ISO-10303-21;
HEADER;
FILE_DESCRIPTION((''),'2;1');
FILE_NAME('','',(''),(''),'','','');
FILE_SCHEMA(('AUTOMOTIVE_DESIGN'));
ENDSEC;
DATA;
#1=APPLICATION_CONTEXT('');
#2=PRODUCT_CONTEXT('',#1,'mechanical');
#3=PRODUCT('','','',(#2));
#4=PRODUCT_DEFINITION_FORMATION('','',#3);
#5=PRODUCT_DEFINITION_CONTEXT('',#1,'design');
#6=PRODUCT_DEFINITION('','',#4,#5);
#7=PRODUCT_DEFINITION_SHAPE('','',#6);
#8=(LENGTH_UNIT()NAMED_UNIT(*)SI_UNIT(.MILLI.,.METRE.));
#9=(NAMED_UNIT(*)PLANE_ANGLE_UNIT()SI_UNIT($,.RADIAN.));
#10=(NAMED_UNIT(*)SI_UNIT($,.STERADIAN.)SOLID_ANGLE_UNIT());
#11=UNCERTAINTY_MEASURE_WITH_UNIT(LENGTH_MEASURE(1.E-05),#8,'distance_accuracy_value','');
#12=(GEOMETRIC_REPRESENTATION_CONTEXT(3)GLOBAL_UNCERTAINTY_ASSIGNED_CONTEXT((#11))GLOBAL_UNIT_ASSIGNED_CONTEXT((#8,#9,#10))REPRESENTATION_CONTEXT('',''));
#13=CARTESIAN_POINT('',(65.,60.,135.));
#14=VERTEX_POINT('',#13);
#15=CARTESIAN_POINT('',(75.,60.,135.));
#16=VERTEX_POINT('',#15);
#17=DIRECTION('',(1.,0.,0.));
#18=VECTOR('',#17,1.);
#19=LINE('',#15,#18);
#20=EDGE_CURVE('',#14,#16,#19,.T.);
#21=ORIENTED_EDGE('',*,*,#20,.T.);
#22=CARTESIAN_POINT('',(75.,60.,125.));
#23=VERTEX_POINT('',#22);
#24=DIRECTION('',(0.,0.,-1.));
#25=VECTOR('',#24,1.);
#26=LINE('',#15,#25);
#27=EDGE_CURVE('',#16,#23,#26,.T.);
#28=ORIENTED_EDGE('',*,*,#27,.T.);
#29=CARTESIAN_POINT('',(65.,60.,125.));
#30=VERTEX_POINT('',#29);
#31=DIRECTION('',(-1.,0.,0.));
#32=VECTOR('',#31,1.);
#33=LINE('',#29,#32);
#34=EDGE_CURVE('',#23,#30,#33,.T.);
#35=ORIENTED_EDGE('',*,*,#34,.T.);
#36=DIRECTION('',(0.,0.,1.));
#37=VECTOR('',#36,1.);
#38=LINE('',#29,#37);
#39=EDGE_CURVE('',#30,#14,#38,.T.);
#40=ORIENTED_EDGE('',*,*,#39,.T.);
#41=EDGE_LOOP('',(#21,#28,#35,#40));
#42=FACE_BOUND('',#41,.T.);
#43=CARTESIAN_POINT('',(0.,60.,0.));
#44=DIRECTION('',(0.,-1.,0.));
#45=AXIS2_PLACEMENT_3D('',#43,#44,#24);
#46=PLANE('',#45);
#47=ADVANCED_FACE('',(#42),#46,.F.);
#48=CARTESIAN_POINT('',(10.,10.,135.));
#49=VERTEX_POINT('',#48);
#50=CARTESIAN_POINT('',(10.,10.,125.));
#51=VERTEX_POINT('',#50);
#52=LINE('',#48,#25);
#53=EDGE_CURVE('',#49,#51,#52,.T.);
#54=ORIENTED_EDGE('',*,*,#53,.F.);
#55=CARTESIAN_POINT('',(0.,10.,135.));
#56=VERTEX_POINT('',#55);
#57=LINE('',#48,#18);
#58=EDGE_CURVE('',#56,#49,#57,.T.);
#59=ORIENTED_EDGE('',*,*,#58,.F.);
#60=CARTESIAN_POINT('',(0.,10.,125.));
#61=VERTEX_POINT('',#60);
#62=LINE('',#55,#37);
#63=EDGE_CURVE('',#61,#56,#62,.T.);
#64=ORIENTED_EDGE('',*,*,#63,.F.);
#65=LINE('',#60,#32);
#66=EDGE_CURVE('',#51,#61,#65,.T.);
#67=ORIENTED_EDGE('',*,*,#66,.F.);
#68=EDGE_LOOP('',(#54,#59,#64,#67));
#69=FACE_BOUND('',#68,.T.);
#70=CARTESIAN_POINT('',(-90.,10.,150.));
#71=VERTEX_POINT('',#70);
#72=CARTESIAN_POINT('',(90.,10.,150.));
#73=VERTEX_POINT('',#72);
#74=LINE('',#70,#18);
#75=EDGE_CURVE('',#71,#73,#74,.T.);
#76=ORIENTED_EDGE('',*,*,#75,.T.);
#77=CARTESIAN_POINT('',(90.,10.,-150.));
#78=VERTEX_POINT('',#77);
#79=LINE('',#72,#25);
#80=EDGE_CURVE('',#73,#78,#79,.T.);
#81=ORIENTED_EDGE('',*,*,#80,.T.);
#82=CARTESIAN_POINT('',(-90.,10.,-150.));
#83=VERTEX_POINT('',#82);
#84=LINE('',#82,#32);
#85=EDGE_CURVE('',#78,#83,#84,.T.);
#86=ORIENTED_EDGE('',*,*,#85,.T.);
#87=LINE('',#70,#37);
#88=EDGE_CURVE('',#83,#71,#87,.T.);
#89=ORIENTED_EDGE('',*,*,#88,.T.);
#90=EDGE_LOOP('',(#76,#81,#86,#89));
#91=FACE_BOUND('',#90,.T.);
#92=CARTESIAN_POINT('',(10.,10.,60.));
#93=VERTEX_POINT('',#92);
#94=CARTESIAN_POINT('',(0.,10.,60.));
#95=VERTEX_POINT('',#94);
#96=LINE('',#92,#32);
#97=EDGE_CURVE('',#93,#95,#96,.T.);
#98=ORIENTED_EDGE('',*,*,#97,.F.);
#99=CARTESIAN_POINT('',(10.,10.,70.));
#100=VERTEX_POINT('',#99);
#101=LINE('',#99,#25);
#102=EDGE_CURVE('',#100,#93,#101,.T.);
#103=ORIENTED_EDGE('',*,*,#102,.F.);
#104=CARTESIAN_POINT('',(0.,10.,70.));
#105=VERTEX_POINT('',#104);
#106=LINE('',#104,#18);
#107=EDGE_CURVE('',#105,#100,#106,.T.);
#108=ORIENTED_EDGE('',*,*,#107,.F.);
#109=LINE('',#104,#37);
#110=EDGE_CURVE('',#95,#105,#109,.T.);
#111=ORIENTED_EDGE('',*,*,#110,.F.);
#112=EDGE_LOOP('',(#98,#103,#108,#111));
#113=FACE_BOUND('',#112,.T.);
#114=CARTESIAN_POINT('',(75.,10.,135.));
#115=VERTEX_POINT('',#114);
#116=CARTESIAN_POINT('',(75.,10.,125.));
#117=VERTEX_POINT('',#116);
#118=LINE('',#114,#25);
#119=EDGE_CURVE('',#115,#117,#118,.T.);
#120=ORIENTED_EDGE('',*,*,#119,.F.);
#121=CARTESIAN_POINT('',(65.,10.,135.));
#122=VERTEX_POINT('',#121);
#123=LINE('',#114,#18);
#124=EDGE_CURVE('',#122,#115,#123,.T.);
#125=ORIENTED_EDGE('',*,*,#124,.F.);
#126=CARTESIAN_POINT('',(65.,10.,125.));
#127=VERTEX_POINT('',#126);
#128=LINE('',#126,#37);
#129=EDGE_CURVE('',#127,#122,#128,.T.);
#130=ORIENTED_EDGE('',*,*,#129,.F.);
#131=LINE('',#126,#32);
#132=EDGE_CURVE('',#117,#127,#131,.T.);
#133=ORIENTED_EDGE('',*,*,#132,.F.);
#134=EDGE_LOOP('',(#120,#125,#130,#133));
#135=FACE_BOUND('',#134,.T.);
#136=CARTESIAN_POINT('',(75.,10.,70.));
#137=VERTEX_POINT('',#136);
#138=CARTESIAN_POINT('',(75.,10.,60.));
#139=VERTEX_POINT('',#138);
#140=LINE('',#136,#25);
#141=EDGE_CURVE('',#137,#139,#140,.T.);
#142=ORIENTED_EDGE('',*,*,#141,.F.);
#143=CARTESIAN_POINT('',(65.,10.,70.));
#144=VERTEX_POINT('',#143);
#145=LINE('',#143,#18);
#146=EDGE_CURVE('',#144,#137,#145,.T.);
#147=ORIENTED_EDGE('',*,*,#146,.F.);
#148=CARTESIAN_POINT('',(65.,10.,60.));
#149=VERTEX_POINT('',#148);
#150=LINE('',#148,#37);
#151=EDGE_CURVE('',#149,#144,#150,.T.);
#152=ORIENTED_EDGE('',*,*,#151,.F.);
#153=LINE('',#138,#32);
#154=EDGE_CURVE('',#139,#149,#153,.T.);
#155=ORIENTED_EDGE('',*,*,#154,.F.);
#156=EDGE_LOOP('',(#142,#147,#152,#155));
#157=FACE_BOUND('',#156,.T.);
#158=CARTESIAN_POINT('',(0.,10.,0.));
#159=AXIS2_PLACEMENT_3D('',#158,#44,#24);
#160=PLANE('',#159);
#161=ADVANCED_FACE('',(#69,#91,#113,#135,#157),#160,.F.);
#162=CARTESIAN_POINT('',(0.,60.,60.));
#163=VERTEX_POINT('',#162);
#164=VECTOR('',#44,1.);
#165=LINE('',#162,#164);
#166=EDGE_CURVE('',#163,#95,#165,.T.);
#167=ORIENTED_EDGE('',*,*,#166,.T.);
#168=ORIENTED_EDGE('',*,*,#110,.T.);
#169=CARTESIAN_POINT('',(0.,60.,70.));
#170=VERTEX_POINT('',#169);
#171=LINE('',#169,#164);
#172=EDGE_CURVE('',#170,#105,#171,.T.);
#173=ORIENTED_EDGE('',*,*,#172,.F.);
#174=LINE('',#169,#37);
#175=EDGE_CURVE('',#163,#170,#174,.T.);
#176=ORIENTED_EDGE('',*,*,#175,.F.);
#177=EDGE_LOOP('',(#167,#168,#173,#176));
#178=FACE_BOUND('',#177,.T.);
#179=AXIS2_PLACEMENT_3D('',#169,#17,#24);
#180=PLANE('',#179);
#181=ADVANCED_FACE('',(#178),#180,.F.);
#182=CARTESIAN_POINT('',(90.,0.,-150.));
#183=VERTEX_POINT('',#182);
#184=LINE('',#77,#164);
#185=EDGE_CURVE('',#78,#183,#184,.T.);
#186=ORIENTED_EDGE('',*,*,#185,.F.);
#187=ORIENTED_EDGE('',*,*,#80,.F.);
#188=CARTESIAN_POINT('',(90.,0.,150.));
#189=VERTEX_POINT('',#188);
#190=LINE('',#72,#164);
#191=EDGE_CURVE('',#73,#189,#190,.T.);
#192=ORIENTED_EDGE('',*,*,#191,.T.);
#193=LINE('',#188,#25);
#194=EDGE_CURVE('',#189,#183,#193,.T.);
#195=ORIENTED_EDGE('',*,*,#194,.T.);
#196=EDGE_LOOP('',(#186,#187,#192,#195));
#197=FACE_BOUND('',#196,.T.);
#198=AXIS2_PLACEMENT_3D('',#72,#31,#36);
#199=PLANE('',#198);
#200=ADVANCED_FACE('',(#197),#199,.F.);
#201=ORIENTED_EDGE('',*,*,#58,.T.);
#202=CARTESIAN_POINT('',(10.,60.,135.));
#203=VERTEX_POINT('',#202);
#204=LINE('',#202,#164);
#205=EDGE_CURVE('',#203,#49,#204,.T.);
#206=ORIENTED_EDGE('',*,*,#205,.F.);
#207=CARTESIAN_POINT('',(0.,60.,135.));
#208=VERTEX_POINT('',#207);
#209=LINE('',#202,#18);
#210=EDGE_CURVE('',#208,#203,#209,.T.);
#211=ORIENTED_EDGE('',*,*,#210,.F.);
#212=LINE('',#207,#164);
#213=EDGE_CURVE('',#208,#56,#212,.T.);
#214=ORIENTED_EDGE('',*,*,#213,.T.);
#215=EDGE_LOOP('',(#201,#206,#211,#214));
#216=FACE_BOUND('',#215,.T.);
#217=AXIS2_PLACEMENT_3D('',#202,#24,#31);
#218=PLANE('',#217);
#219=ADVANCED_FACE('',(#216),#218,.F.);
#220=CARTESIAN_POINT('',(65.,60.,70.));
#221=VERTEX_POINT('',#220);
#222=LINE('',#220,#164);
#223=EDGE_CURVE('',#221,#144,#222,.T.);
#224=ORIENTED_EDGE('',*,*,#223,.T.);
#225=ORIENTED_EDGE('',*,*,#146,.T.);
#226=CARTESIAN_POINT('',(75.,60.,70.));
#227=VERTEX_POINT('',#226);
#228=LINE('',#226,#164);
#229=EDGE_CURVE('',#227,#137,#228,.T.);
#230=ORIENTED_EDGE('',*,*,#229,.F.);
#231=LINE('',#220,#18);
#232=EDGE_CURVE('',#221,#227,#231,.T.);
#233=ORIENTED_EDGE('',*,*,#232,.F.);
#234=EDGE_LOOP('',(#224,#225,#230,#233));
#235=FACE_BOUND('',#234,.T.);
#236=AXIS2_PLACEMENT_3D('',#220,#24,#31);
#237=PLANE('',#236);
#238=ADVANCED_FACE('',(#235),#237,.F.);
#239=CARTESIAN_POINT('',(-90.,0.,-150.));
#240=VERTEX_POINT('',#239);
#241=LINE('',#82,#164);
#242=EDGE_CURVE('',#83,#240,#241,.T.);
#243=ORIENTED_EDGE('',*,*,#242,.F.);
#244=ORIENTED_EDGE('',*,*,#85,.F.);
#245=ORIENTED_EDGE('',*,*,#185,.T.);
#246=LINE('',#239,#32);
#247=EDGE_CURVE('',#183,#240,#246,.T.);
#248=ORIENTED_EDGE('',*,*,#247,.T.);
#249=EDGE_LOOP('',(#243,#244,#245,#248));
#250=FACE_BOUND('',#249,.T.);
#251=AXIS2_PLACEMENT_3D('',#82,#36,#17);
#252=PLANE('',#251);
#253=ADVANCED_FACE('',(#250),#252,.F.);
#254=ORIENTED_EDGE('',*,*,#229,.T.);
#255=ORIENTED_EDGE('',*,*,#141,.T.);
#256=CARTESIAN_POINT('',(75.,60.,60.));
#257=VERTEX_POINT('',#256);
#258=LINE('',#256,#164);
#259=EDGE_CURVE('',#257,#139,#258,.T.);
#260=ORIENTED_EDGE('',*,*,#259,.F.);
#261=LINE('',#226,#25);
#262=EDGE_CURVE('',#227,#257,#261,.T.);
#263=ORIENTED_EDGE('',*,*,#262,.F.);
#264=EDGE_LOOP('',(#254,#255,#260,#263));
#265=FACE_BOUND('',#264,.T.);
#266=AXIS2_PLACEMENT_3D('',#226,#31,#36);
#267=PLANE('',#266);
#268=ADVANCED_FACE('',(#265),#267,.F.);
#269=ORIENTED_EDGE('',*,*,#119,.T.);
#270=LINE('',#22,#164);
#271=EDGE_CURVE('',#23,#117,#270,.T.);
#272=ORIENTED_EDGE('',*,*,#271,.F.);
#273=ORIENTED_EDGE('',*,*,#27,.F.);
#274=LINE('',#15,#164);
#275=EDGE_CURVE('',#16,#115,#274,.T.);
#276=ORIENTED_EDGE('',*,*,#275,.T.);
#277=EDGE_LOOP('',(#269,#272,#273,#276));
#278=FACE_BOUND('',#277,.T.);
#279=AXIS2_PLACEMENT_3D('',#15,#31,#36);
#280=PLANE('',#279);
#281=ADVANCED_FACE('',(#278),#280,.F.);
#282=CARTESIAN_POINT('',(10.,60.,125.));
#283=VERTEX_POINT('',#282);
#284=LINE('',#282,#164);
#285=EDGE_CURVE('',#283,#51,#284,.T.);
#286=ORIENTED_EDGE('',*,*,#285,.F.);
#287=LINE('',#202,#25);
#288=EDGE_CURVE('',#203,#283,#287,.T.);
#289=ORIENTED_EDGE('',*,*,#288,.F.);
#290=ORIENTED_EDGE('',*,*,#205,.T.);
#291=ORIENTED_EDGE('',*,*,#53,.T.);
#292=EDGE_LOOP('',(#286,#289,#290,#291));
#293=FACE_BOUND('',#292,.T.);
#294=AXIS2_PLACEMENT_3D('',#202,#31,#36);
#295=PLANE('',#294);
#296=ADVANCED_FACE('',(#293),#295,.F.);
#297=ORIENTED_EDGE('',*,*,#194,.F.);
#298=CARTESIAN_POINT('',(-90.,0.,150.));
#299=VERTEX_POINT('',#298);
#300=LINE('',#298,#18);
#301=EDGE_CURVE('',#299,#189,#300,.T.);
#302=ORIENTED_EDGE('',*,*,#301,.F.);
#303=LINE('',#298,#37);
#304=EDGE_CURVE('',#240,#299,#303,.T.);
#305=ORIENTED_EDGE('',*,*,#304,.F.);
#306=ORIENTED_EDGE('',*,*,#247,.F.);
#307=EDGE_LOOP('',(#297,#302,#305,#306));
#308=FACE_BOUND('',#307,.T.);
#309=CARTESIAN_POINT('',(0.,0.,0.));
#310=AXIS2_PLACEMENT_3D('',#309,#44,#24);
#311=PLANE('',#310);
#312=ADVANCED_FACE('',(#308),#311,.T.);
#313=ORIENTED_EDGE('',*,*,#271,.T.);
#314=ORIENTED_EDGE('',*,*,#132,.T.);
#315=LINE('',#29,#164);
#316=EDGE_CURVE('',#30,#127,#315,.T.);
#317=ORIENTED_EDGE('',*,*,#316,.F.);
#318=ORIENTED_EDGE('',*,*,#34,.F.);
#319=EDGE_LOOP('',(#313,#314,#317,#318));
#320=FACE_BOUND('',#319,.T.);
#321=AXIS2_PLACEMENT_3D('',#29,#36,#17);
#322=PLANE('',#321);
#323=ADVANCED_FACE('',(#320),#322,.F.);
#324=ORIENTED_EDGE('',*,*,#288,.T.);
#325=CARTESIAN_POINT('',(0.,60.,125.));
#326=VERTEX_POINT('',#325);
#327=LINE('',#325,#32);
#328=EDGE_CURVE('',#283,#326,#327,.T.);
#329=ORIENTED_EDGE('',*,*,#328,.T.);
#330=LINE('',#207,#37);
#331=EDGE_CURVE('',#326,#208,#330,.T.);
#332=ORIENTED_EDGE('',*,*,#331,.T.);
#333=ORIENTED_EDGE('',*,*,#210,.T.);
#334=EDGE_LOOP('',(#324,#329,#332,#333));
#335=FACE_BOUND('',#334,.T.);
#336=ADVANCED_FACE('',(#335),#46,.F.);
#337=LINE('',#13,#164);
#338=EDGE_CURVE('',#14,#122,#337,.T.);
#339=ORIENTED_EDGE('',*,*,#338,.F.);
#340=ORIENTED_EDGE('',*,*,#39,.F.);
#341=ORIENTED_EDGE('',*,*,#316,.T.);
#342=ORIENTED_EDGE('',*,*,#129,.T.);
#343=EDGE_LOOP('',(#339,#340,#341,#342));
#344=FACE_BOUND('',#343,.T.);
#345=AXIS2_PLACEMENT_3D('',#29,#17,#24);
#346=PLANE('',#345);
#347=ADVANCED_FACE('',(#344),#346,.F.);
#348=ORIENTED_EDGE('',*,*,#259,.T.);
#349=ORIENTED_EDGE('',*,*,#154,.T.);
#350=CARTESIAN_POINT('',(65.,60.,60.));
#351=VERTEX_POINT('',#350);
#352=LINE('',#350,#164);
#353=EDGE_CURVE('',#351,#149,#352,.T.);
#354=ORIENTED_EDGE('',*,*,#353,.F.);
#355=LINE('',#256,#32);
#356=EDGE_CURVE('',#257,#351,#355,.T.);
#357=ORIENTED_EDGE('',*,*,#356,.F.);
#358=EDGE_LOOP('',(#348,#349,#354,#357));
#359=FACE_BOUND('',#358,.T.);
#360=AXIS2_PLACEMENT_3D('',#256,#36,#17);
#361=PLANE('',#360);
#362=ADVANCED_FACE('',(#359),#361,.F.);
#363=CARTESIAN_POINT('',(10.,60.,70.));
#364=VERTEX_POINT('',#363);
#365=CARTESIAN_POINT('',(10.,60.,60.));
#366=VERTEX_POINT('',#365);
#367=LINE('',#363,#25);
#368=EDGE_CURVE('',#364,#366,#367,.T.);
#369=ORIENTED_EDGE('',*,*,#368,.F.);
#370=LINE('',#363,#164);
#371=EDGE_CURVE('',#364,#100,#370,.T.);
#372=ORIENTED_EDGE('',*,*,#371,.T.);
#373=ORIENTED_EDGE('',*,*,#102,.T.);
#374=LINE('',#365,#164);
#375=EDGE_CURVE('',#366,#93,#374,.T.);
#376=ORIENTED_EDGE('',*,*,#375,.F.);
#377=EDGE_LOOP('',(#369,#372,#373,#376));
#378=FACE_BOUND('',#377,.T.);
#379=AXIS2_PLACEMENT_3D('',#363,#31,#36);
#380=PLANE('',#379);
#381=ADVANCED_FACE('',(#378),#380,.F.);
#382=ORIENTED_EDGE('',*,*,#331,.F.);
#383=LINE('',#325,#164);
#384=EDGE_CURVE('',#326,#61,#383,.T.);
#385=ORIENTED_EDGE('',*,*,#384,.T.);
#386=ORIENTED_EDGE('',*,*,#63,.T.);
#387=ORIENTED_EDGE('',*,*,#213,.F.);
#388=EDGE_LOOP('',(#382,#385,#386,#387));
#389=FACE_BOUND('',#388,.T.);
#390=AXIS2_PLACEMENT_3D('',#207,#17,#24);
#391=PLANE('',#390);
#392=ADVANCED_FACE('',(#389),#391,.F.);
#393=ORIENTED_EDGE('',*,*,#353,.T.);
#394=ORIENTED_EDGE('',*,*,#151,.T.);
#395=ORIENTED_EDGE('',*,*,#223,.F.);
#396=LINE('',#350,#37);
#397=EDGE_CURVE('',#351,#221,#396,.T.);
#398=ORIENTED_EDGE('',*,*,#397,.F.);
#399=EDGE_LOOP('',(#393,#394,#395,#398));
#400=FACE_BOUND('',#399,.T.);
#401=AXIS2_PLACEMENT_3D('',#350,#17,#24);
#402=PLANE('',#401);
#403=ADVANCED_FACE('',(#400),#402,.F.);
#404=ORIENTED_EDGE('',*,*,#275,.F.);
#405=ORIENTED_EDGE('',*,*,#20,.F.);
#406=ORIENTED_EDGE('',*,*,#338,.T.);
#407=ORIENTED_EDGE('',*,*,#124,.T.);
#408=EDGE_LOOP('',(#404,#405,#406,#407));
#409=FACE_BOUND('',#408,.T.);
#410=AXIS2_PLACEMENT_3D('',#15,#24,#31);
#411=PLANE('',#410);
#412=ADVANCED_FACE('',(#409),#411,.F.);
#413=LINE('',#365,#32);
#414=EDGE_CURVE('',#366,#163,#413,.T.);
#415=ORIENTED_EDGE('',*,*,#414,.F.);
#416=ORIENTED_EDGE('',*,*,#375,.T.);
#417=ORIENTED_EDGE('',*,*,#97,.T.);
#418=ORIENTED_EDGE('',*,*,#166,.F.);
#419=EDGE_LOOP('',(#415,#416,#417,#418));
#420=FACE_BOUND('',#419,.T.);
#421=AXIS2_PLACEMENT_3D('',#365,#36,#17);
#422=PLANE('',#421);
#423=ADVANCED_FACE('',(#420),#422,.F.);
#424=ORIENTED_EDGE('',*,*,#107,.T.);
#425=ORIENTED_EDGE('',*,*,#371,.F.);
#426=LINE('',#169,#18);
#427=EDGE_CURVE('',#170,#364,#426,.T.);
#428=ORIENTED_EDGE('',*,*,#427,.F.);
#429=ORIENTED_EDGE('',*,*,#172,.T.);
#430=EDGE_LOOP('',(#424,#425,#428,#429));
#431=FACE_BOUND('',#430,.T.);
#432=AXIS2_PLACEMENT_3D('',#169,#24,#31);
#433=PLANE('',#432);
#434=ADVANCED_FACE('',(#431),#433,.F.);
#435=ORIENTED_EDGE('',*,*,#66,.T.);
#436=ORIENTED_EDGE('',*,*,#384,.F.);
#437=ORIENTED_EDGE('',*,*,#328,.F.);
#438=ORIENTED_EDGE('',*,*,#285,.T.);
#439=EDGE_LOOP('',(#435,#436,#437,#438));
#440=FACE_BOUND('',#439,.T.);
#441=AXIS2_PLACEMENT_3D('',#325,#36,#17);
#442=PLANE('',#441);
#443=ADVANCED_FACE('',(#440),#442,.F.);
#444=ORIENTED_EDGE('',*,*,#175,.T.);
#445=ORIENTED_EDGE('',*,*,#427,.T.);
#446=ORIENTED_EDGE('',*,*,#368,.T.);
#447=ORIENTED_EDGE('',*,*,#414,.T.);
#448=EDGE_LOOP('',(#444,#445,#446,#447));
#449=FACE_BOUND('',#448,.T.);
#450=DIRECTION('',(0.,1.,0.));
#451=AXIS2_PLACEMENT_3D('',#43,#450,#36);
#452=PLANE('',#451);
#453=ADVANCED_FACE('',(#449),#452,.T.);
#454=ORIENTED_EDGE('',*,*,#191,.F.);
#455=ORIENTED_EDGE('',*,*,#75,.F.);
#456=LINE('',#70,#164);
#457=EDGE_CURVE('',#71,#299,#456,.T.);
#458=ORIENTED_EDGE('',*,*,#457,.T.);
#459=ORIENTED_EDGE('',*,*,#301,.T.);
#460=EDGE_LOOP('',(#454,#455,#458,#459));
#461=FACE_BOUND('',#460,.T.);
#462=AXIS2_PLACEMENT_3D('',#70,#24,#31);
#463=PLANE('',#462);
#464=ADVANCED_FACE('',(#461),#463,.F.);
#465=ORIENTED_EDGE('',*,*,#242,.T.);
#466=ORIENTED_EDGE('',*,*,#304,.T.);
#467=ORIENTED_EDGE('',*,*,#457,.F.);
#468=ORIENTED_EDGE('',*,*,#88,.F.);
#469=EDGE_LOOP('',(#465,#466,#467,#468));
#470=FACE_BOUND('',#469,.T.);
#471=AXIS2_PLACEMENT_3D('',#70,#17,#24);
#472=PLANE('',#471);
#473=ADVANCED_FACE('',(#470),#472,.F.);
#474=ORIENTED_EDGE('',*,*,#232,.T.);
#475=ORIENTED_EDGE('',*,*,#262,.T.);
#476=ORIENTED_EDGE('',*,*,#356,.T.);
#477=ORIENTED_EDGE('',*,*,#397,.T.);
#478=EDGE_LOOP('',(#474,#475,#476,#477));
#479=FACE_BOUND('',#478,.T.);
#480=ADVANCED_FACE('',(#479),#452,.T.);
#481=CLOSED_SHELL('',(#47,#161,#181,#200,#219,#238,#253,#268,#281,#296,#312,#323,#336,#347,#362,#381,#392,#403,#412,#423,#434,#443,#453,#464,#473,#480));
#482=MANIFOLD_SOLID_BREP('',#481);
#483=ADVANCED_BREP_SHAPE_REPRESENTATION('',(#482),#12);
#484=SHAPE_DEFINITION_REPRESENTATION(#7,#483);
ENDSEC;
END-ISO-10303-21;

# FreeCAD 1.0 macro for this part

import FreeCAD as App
import Part
import Sketcher

V = App.Vector

doc = App.newDocument("Part")
body = doc.addObject("PartDesign::Body", "Body")

sketch1 = doc.addObject("Sketcher::SketchObject", "Sketch")
body.addObject(sketch1)
sketch1.AttachmentSupport = (doc.XZ_Plane, [""])
sketch1.MapMode = "FlatFace"
sketch1.addGeometry([
    Part.LineSegment(V(-90, -150, 0), V(-90, 150, 0)),
    Part.LineSegment(V(-90, 150, 0), V(90, 150, 0)),
    Part.LineSegment(V(90, 150, 0), V(90, -150, 0)),
    Part.LineSegment(V(90, -150, 0), V(-90, -150, 0)),
], False)
sketch1.addConstraint([
    Sketcher.Constraint("Coincident", 0, 2, 1, 1),
    Sketcher.Constraint("Coincident", 1, 2, 2, 1),
    Sketcher.Constraint("Coincident", 2, 2, 3, 1),
    Sketcher.Constraint("Coincident", 3, 2, 0, 1),
    Sketcher.Constraint("Vertical", 0),
    Sketcher.Constraint("Horizontal", 1),
    Sketcher.Constraint("Vertical", 2),
    Sketcher.Constraint("Horizontal", 3),
    Sketcher.Constraint("Symmetric", 0, 2, 2, 2, -1, 1),
    Sketcher.Constraint("DistanceX", 1, 1, 1, 2, 180.0),
    Sketcher.Constraint("DistanceY", 0, 1, 0, 2, 300.0),
])
pad1 = doc.addObject("PartDesign::Pad", "Pad")
body.addObject(pad1)
pad1.Profile = sketch1
pad1.Length = 10
pad1.Reversed = True

sketch2 = doc.addObject("Sketcher::SketchObject", "Sketch001")
body.addObject(sketch2)
sketch2.AttachmentSupport = (doc.XZ_Plane, [""])
sketch2.MapMode = "FlatFace"
sketch2.AttachmentOffset = App.Placement(V(0, 0, -10), App.Rotation())
sketch2.addGeometry([
    Part.LineSegment(V(65, 125, 0), V(65, 135, 0)),
    Part.LineSegment(V(65, 135, 0), V(75, 135, 0)),
    Part.LineSegment(V(75, 135, 0), V(75, 125, 0)),
    Part.LineSegment(V(75, 125, 0), V(65, 125, 0)),
    Part.LineSegment(V(65, 60, 0), V(65, 70, 0)),
    Part.LineSegment(V(65, 70, 0), V(75, 70, 0)),
    Part.LineSegment(V(75, 70, 0), V(75, 60, 0)),
    Part.LineSegment(V(75, 60, 0), V(65, 60, 0)),
    Part.LineSegment(V(0, 125, 0), V(0, 135, 0)),
    Part.LineSegment(V(0, 135, 0), V(10, 135, 0)),
    Part.LineSegment(V(10, 135, 0), V(10, 125, 0)),
    Part.LineSegment(V(10, 125, 0), V(0, 125, 0)),
    Part.LineSegment(V(0, 60, 0), V(0, 70, 0)),
    Part.LineSegment(V(0, 70, 0), V(10, 70, 0)),
    Part.LineSegment(V(10, 70, 0), V(10, 60, 0)),
    Part.LineSegment(V(10, 60, 0), V(0, 60, 0)),
], False)
sketch2.addConstraint([
    Sketcher.Constraint("Coincident", 0, 2, 1, 1),
    Sketcher.Constraint("Coincident", 1, 2, 2, 1),
    Sketcher.Constraint("Coincident", 2, 2, 3, 1),
    Sketcher.Constraint("Coincident", 3, 2, 0, 1),
    Sketcher.Constraint("Coincident", 4, 2, 5, 1),
    Sketcher.Constraint("Coincident", 5, 2, 6, 1),
    Sketcher.Constraint("Coincident", 6, 2, 7, 1),
    Sketcher.Constraint("Coincident", 7, 2, 4, 1),
    Sketcher.Constraint("Coincident", 8, 2, 9, 1),
    Sketcher.Constraint("Coincident", 9, 2, 10, 1),
    Sketcher.Constraint("Coincident", 10, 2, 11, 1),
    Sketcher.Constraint("Coincident", 11, 2, 8, 1),
    Sketcher.Constraint("Coincident", 12, 2, 13, 1),
    Sketcher.Constraint("Coincident", 13, 2, 14, 1),
    Sketcher.Constraint("Coincident", 14, 2, 15, 1),
    Sketcher.Constraint("Coincident", 15, 2, 12, 1),
    Sketcher.Constraint("Vertical", 0),
    Sketcher.Constraint("Horizontal", 1),
    Sketcher.Constraint("Vertical", 2),
    Sketcher.Constraint("Horizontal", 3),
    Sketcher.Constraint("Vertical", 4),
    Sketcher.Constraint("Horizontal", 5),
    Sketcher.Constraint("Vertical", 6),
    Sketcher.Constraint("Horizontal", 7),
    Sketcher.Constraint("Vertical", 8),
    Sketcher.Constraint("Horizontal", 9),
    Sketcher.Constraint("Vertical", 10),
    Sketcher.Constraint("Horizontal", 11),
    Sketcher.Constraint("Vertical", 12),
    Sketcher.Constraint("Horizontal", 13),
    Sketcher.Constraint("Vertical", 14),
    Sketcher.Constraint("Horizontal", 15),
    Sketcher.Constraint("PointOnObject", 8, 2, -2),
    Sketcher.Constraint("PointOnObject", 12, 2, -2),
    Sketcher.Constraint("Horizontal", 1, 2, 8, 2),
    Sketcher.Constraint("Horizontal", 3, 2, 10, 2),
    Sketcher.Constraint("Horizontal", 5, 2, 12, 2),
    Sketcher.Constraint("Horizontal", 7, 2, 14, 2),
    Sketcher.Constraint("Vertical", 3, 2, 4, 2),
    Sketcher.Constraint("Vertical", 2, 2, 5, 2),
    Sketcher.Constraint("Vertical", 10, 2, 13, 2),
    Sketcher.Constraint("Equal", 7, 9),
    Sketcher.Constraint("Equal", 15, 0),
    Sketcher.Constraint("Equal", 2, 4),
    Sketcher.Constraint("DistanceX", 1, 1, 1, 2, 10.0),
    Sketcher.Constraint("DistanceX", -1, 1, 0, 2, 65.0),
    Sketcher.Constraint("DistanceY", -1, 1, 0, 2, 135.0),
    Sketcher.Constraint("DistanceY", -1, 1, 4, 2, 70.0),
])
pad2 = doc.addObject("PartDesign::Pad", "Pad001")
body.addObject(pad2)
pad2.Profile = sketch2
pad2.Length = 50
pad2.Reversed = True

doc.recompute()
